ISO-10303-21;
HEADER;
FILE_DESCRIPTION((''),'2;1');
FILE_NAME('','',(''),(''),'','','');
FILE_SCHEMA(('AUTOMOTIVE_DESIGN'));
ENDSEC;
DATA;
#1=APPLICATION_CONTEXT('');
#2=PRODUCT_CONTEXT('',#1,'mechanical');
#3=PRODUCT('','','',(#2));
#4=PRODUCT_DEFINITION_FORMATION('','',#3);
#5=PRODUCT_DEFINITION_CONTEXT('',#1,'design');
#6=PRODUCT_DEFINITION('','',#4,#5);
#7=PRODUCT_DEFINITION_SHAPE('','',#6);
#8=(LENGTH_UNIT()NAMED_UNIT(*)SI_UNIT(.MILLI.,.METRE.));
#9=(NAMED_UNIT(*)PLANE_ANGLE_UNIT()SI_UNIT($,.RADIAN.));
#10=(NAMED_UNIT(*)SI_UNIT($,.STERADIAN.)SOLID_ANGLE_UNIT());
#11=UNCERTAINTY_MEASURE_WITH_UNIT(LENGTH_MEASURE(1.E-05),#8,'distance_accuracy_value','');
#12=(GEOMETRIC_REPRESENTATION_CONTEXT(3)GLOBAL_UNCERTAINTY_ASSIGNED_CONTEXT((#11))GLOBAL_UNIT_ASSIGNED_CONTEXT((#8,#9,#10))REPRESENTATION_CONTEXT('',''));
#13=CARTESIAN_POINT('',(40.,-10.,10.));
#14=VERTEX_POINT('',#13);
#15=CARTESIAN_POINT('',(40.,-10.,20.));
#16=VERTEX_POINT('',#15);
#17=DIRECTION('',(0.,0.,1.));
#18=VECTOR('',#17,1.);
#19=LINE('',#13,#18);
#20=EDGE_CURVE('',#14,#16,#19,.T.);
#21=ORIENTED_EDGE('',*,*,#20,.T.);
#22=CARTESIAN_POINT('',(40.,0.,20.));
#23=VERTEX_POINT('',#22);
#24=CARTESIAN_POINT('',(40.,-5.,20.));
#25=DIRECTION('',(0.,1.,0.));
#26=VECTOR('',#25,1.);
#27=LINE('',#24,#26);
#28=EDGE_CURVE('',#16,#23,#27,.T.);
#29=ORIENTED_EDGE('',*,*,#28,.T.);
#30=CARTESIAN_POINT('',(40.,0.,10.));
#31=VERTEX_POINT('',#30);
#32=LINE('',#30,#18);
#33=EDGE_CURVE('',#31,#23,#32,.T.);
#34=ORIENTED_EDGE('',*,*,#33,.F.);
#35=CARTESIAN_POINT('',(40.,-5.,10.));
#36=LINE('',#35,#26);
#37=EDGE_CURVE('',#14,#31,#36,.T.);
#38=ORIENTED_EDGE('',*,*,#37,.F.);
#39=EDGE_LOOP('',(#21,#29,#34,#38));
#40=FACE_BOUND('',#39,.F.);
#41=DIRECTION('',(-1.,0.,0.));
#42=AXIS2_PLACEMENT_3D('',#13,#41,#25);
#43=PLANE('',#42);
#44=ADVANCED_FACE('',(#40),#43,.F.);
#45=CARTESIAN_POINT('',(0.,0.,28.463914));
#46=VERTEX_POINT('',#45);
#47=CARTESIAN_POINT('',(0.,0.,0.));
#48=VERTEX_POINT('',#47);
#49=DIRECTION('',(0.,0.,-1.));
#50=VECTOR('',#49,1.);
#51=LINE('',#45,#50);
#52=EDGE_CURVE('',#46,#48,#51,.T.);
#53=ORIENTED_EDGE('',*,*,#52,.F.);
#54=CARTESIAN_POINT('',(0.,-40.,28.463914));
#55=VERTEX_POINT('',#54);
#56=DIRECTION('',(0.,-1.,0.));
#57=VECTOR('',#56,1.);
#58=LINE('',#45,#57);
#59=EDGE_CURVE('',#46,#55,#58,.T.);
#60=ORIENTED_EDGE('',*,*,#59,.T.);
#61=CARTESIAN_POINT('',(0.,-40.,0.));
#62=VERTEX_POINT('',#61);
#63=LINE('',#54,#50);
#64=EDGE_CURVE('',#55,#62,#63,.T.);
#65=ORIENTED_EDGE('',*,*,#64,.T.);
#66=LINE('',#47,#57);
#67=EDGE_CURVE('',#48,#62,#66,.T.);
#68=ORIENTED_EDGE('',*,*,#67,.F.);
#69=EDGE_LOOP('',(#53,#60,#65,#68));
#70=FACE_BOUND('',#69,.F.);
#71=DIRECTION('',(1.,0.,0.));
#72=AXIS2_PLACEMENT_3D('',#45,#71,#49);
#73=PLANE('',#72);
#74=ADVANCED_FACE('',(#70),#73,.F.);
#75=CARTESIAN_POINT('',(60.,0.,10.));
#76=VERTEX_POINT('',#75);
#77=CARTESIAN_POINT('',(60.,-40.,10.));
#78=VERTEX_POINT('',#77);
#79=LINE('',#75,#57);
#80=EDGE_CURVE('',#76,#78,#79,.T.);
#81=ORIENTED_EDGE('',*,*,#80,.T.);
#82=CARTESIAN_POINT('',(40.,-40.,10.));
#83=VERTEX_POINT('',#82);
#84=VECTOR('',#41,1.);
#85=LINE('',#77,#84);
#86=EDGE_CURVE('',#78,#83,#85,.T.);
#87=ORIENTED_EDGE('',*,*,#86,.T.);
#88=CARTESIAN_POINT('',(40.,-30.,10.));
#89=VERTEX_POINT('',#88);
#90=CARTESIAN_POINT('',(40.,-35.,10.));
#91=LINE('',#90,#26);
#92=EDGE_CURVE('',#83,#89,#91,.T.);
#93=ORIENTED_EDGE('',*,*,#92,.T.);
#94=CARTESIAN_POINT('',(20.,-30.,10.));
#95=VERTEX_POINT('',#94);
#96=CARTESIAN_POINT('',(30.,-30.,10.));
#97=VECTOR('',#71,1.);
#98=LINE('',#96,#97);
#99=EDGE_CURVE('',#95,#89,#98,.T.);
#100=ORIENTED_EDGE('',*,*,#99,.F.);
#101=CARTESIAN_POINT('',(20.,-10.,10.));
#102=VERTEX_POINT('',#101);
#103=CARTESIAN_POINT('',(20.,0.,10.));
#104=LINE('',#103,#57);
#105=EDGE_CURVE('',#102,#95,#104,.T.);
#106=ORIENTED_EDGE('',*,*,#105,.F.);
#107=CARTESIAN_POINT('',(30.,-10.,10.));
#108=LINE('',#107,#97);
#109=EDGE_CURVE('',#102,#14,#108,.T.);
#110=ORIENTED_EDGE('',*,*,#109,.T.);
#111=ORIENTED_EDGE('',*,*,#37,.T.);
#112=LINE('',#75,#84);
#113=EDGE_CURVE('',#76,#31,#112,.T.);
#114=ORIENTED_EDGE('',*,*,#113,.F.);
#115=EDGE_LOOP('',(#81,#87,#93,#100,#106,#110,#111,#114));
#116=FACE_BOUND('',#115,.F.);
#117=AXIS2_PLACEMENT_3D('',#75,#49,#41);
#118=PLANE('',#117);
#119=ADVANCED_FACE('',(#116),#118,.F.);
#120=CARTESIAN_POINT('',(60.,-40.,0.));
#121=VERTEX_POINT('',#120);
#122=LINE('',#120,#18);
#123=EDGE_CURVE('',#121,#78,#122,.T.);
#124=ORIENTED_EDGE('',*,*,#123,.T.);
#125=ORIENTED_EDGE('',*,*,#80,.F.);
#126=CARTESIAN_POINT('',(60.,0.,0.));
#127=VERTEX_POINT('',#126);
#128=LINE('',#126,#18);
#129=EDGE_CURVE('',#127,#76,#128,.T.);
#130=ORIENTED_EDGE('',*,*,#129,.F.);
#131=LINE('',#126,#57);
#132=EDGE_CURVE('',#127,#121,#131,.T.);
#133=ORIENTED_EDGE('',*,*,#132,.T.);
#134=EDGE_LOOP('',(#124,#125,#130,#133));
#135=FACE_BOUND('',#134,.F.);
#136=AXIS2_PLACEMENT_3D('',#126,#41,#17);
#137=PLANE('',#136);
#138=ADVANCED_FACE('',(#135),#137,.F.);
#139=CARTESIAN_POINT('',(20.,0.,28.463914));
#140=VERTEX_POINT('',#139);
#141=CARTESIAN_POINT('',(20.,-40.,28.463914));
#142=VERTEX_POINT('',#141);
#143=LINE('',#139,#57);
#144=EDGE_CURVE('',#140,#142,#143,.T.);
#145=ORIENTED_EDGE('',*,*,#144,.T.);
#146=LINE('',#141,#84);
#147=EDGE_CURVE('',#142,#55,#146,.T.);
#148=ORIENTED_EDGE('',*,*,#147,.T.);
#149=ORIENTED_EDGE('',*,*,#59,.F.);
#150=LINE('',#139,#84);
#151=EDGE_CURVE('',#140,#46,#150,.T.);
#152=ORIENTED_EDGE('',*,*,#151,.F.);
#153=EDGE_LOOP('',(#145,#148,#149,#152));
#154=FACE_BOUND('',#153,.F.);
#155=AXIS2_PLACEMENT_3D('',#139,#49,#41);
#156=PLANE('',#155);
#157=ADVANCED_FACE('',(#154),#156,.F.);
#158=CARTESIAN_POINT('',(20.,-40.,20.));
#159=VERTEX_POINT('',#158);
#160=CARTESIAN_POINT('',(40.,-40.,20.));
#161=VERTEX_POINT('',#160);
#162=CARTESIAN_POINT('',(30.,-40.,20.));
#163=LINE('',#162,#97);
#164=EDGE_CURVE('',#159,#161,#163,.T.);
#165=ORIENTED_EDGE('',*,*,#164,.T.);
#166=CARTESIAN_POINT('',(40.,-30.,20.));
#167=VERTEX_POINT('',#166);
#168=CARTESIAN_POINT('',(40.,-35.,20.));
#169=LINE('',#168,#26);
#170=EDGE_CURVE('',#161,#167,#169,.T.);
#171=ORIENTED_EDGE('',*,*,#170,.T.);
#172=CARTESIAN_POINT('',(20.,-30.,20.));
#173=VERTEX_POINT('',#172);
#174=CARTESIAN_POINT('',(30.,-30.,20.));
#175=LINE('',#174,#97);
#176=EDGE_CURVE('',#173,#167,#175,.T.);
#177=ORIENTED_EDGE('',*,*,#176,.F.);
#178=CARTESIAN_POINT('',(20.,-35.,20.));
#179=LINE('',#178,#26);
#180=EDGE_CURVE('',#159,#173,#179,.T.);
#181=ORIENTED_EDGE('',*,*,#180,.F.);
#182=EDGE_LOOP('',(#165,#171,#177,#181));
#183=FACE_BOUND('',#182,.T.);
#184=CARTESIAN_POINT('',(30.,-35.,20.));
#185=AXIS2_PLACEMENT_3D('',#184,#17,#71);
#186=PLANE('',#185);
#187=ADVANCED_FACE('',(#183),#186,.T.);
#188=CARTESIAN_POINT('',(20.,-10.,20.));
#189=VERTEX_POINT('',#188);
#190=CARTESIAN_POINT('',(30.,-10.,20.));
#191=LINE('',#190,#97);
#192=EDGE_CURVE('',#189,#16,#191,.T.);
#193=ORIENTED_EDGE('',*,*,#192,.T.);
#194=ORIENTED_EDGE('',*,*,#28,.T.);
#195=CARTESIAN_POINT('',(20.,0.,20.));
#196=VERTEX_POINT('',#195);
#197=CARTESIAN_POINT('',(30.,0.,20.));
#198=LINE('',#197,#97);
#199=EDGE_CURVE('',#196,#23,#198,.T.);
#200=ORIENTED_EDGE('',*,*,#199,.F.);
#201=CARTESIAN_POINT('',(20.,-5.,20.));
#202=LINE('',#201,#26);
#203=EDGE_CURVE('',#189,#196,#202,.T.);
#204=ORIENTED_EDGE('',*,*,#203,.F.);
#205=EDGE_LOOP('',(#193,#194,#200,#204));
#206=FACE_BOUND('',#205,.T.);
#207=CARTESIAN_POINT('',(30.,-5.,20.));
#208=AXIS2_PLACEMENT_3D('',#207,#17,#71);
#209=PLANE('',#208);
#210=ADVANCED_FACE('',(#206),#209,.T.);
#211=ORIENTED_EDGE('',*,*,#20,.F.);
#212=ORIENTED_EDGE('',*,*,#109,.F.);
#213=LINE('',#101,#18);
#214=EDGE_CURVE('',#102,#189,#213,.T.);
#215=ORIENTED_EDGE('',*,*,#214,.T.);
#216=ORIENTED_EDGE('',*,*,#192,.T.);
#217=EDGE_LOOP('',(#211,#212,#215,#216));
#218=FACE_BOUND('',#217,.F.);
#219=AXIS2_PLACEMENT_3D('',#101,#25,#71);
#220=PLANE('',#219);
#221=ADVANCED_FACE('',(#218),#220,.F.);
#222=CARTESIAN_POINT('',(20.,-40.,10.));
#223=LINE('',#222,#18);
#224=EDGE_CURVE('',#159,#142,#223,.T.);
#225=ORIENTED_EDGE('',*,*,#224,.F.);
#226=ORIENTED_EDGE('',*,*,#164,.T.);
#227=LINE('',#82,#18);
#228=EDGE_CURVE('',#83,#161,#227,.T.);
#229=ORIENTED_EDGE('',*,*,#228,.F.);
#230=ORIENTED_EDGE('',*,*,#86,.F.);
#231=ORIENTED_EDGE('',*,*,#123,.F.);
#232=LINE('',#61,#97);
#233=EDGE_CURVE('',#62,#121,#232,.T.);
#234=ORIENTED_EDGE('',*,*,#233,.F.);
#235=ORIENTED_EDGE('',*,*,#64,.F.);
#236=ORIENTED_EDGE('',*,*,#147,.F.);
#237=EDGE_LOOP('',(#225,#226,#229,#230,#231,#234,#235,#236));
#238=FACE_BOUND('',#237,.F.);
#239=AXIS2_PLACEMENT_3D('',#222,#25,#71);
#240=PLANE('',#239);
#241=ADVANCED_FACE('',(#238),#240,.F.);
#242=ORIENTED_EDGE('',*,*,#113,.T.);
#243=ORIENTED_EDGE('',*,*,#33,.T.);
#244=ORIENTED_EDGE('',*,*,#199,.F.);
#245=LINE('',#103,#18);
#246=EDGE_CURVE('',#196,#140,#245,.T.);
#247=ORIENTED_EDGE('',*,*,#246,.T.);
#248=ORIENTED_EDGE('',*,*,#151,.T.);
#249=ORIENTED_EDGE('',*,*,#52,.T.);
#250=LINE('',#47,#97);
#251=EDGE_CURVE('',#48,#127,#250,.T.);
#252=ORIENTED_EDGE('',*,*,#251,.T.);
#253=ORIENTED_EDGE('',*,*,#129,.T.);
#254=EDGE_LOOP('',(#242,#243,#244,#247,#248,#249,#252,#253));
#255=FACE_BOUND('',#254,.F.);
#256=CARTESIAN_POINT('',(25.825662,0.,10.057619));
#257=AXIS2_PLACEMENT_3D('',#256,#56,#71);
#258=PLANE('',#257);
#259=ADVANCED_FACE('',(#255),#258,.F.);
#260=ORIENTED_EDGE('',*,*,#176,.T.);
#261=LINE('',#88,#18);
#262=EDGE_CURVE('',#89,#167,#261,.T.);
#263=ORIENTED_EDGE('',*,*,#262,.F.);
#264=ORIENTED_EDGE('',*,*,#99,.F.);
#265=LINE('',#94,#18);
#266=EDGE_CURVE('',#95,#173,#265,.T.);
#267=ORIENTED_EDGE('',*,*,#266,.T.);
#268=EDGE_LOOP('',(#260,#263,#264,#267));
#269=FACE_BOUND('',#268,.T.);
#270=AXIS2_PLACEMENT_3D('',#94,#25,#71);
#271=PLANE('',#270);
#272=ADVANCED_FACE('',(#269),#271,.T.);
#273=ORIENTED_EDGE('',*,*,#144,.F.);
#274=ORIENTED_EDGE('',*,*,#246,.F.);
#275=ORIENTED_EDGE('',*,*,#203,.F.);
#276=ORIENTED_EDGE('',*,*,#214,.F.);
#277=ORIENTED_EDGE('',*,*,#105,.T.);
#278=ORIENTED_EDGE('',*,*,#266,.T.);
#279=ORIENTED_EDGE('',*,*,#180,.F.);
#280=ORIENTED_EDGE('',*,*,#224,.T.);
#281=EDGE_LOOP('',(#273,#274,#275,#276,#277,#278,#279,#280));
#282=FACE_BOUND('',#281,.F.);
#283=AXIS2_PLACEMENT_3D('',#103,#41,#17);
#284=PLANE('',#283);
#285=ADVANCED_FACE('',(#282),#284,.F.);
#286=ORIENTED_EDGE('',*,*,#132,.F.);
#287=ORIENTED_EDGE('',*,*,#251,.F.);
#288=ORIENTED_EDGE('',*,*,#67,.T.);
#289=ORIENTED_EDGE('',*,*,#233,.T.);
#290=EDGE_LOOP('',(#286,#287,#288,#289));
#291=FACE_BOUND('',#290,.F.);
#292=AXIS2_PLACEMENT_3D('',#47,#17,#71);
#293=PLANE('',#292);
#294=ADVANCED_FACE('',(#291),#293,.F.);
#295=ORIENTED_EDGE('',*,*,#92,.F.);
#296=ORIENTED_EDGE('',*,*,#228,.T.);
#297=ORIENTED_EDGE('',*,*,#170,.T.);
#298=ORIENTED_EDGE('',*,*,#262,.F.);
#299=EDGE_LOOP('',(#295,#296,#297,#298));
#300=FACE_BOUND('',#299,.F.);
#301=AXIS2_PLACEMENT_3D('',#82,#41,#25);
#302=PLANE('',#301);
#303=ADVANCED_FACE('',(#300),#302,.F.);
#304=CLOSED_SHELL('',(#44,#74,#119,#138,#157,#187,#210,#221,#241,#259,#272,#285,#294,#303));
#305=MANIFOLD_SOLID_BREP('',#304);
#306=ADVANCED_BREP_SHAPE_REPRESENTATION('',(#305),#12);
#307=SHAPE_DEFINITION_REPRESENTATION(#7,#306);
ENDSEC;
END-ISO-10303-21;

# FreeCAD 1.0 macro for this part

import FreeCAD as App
import Part
import Sketcher
from FreeCAD import Vector
Q = App.Units.Quantity


def add_polygon(sketch, points):
    """Adds a closed chain of lines whose ends are joined by coincident constraints."""
    first, n = sketch.GeometryCount, len(points)
    for a, b in zip(points, points[1:] + points[:1]):
        sketch.addGeometry(Part.LineSegment(App.Vector(*a, 0), App.Vector(*b, 0)), False)
    for i in range(n):
        sketch.addConstraint(Sketcher.Constraint("Coincident", first + i, 2, first + (i + 1) % n, 1))

doc = App.newDocument("Part")
body = doc.addObject("PartDesign::Body", "Body")

sketch1 = doc.addObject("Sketcher::SketchObject", "Sketch")
body.addObject(sketch1)
sketch1.AttachmentSupport = (doc.XZ_Plane, [""])
sketch1.MapMode = "FlatFace"
add_polygon(sketch1, [(0, 28.463914), (0, 0), (60, 0), (60, 10), (20, 10), (20, 28.463914)])
sketch1.addConstraint(Sketcher.Constraint("Vertical", 0))
sketch1.addConstraint(Sketcher.Constraint("Horizontal", 1))
sketch1.addConstraint(Sketcher.Constraint("Vertical", 2))
sketch1.addConstraint(Sketcher.Constraint("Horizontal", 3))
sketch1.addConstraint(Sketcher.Constraint("Vertical", 4))
sketch1.addConstraint(Sketcher.Constraint("Horizontal", 5))
sketch1.addConstraint(Sketcher.Constraint("Coincident", 0, 2, -1, 1))
sketch1.addConstraint(Sketcher.Constraint("DistanceX", 1, 1, 1, 2, Q("60 mm")))
sketch1.addConstraint(Sketcher.Constraint("DistanceX", 3, 2, 3, 1, Q("40 mm")))
sketch1.addConstraint(Sketcher.Constraint("DistanceY", 2, 1, 2, 2, Q("10 mm")))
sketch1.addConstraint(Sketcher.Constraint("DistanceY", 0, 2, 0, 1, Q("28.463914 mm")))
pad1 = doc.addObject("PartDesign::Pad", "Pad")
body.addObject(pad1)
pad1.Profile = sketch1
pad1.Length = 40

sketch2 = doc.addObject("Sketcher::SketchObject", "Sketch001")
body.addObject(sketch2)
sketch2.AttachmentSupport = (doc.XY_Plane, [""])
sketch2.MapMode = "FlatFace"
sketch2.AttachmentOffset = App.Placement(Vector(0, 0, 10), App.Rotation())
add_polygon(sketch2, [(20, -30), (20, -40), (40, -40), (40, -30)])
sketch2.addConstraint(Sketcher.Constraint("Vertical", 0))
sketch2.addConstraint(Sketcher.Constraint("Horizontal", 1))
sketch2.addConstraint(Sketcher.Constraint("Vertical", 2))
sketch2.addConstraint(Sketcher.Constraint("Horizontal", 3))
sketch2.addConstraint(Sketcher.Constraint("DistanceX", 1, 1, 1, 2, Q("20 mm")))
sketch2.addConstraint(Sketcher.Constraint("DistanceY", 0, 2, 0, 1, Q("10 mm")))
sketch2.addConstraint(Sketcher.Constraint("DistanceX", -1, 1, 0, 2, Q("20 mm")))
sketch2.addConstraint(Sketcher.Constraint("DistanceY", 0, 2, -1, 1, Q("40 mm")))
pad2 = doc.addObject("PartDesign::Pad", "Pad001")
body.addObject(pad2)
pad2.Profile = sketch2
pad2.Length = 10

sketch3 = doc.addObject("Sketcher::SketchObject", "Sketch002")
body.addObject(sketch3)
sketch3.AttachmentSupport = (doc.XY_Plane, [""])
sketch3.MapMode = "FlatFace"
sketch3.AttachmentOffset = App.Placement(Vector(0, 0, 10), App.Rotation())
add_polygon(sketch3, [(20, 0), (20, -10), (40, -10), (40, 0)])
sketch3.addConstraint(Sketcher.Constraint("Vertical", 0))
sketch3.addConstraint(Sketcher.Constraint("Horizontal", 1))
sketch3.addConstraint(Sketcher.Constraint("Vertical", 2))
sketch3.addConstraint(Sketcher.Constraint("Horizontal", 3))
sketch3.addConstraint(Sketcher.Constraint("PointOnObject", 2, 2, -1))
sketch3.addConstraint(Sketcher.Constraint("DistanceX", 1, 1, 1, 2, Q("20 mm")))
sketch3.addConstraint(Sketcher.Constraint("DistanceY", 0, 2, 0, 1, Q("10 mm")))
sketch3.addConstraint(Sketcher.Constraint("DistanceX", -1, 1, 0, 2, Q("20 mm")))
pad3 = doc.addObject("PartDesign::Pad", "Pad002")
body.addObject(pad3)
pad3.Profile = sketch3
pad3.Length = 10

doc.recompute()
